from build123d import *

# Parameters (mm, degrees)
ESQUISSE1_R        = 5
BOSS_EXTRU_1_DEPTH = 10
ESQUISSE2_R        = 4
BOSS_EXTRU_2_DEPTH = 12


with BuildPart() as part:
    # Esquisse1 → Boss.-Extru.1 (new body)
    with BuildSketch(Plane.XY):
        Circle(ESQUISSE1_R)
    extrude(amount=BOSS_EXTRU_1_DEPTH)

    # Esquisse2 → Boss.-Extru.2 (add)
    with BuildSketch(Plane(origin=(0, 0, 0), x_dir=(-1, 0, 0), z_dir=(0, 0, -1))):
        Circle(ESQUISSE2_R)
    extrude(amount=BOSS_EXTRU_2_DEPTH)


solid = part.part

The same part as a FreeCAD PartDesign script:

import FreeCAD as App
import Part
import Sketcher
from FreeCAD import Vector
Q = App.Units.Quantity

doc = App.newDocument("Part")
body = doc.addObject("PartDesign::Body", "Body")

# Sketch on XY plane
sketch1 = body.newObject("Sketcher::SketchObject", "Sketch")
sketch1.AttachmentSupport = (doc.getObject("XY_Plane"), [""])
sketch1.MapMode = "FlatFace"
sketch1.addGeometry(Part.Circle(Vector(0, 0, 0), Vector(0, 0, 1), 5), False)
sketch1.addConstraint(Sketcher.Constraint("Coincident", 0, 3, -1, 1))
sketch1.addConstraint(Sketcher.Constraint("Diameter", 0, Q("10 mm")))
pad1 = body.newObject("PartDesign::Pad", "Pad")
pad1.Profile = sketch1
pad1.Length = 10

# Sketch on XY plane
sketch2 = body.newObject("Sketcher::SketchObject", "Sketch001")
sketch2.AttachmentSupport = (doc.getObject("XY_Plane"), [""])
sketch2.MapMode = "FlatFace"
sketch2.addGeometry(Part.Circle(Vector(0, 0, 0), Vector(0, 0, 1), 4), False)
sketch2.addConstraint(Sketcher.Constraint("Coincident", 0, 3, -1, 1))
sketch2.addConstraint(Sketcher.Constraint("Diameter", 0, Q("8 mm")))
pad2 = body.newObject("PartDesign::Pad", "Pad001")
pad2.Profile = sketch2
pad2.Length = 12
pad2.Reversed = True

doc.recompute()
